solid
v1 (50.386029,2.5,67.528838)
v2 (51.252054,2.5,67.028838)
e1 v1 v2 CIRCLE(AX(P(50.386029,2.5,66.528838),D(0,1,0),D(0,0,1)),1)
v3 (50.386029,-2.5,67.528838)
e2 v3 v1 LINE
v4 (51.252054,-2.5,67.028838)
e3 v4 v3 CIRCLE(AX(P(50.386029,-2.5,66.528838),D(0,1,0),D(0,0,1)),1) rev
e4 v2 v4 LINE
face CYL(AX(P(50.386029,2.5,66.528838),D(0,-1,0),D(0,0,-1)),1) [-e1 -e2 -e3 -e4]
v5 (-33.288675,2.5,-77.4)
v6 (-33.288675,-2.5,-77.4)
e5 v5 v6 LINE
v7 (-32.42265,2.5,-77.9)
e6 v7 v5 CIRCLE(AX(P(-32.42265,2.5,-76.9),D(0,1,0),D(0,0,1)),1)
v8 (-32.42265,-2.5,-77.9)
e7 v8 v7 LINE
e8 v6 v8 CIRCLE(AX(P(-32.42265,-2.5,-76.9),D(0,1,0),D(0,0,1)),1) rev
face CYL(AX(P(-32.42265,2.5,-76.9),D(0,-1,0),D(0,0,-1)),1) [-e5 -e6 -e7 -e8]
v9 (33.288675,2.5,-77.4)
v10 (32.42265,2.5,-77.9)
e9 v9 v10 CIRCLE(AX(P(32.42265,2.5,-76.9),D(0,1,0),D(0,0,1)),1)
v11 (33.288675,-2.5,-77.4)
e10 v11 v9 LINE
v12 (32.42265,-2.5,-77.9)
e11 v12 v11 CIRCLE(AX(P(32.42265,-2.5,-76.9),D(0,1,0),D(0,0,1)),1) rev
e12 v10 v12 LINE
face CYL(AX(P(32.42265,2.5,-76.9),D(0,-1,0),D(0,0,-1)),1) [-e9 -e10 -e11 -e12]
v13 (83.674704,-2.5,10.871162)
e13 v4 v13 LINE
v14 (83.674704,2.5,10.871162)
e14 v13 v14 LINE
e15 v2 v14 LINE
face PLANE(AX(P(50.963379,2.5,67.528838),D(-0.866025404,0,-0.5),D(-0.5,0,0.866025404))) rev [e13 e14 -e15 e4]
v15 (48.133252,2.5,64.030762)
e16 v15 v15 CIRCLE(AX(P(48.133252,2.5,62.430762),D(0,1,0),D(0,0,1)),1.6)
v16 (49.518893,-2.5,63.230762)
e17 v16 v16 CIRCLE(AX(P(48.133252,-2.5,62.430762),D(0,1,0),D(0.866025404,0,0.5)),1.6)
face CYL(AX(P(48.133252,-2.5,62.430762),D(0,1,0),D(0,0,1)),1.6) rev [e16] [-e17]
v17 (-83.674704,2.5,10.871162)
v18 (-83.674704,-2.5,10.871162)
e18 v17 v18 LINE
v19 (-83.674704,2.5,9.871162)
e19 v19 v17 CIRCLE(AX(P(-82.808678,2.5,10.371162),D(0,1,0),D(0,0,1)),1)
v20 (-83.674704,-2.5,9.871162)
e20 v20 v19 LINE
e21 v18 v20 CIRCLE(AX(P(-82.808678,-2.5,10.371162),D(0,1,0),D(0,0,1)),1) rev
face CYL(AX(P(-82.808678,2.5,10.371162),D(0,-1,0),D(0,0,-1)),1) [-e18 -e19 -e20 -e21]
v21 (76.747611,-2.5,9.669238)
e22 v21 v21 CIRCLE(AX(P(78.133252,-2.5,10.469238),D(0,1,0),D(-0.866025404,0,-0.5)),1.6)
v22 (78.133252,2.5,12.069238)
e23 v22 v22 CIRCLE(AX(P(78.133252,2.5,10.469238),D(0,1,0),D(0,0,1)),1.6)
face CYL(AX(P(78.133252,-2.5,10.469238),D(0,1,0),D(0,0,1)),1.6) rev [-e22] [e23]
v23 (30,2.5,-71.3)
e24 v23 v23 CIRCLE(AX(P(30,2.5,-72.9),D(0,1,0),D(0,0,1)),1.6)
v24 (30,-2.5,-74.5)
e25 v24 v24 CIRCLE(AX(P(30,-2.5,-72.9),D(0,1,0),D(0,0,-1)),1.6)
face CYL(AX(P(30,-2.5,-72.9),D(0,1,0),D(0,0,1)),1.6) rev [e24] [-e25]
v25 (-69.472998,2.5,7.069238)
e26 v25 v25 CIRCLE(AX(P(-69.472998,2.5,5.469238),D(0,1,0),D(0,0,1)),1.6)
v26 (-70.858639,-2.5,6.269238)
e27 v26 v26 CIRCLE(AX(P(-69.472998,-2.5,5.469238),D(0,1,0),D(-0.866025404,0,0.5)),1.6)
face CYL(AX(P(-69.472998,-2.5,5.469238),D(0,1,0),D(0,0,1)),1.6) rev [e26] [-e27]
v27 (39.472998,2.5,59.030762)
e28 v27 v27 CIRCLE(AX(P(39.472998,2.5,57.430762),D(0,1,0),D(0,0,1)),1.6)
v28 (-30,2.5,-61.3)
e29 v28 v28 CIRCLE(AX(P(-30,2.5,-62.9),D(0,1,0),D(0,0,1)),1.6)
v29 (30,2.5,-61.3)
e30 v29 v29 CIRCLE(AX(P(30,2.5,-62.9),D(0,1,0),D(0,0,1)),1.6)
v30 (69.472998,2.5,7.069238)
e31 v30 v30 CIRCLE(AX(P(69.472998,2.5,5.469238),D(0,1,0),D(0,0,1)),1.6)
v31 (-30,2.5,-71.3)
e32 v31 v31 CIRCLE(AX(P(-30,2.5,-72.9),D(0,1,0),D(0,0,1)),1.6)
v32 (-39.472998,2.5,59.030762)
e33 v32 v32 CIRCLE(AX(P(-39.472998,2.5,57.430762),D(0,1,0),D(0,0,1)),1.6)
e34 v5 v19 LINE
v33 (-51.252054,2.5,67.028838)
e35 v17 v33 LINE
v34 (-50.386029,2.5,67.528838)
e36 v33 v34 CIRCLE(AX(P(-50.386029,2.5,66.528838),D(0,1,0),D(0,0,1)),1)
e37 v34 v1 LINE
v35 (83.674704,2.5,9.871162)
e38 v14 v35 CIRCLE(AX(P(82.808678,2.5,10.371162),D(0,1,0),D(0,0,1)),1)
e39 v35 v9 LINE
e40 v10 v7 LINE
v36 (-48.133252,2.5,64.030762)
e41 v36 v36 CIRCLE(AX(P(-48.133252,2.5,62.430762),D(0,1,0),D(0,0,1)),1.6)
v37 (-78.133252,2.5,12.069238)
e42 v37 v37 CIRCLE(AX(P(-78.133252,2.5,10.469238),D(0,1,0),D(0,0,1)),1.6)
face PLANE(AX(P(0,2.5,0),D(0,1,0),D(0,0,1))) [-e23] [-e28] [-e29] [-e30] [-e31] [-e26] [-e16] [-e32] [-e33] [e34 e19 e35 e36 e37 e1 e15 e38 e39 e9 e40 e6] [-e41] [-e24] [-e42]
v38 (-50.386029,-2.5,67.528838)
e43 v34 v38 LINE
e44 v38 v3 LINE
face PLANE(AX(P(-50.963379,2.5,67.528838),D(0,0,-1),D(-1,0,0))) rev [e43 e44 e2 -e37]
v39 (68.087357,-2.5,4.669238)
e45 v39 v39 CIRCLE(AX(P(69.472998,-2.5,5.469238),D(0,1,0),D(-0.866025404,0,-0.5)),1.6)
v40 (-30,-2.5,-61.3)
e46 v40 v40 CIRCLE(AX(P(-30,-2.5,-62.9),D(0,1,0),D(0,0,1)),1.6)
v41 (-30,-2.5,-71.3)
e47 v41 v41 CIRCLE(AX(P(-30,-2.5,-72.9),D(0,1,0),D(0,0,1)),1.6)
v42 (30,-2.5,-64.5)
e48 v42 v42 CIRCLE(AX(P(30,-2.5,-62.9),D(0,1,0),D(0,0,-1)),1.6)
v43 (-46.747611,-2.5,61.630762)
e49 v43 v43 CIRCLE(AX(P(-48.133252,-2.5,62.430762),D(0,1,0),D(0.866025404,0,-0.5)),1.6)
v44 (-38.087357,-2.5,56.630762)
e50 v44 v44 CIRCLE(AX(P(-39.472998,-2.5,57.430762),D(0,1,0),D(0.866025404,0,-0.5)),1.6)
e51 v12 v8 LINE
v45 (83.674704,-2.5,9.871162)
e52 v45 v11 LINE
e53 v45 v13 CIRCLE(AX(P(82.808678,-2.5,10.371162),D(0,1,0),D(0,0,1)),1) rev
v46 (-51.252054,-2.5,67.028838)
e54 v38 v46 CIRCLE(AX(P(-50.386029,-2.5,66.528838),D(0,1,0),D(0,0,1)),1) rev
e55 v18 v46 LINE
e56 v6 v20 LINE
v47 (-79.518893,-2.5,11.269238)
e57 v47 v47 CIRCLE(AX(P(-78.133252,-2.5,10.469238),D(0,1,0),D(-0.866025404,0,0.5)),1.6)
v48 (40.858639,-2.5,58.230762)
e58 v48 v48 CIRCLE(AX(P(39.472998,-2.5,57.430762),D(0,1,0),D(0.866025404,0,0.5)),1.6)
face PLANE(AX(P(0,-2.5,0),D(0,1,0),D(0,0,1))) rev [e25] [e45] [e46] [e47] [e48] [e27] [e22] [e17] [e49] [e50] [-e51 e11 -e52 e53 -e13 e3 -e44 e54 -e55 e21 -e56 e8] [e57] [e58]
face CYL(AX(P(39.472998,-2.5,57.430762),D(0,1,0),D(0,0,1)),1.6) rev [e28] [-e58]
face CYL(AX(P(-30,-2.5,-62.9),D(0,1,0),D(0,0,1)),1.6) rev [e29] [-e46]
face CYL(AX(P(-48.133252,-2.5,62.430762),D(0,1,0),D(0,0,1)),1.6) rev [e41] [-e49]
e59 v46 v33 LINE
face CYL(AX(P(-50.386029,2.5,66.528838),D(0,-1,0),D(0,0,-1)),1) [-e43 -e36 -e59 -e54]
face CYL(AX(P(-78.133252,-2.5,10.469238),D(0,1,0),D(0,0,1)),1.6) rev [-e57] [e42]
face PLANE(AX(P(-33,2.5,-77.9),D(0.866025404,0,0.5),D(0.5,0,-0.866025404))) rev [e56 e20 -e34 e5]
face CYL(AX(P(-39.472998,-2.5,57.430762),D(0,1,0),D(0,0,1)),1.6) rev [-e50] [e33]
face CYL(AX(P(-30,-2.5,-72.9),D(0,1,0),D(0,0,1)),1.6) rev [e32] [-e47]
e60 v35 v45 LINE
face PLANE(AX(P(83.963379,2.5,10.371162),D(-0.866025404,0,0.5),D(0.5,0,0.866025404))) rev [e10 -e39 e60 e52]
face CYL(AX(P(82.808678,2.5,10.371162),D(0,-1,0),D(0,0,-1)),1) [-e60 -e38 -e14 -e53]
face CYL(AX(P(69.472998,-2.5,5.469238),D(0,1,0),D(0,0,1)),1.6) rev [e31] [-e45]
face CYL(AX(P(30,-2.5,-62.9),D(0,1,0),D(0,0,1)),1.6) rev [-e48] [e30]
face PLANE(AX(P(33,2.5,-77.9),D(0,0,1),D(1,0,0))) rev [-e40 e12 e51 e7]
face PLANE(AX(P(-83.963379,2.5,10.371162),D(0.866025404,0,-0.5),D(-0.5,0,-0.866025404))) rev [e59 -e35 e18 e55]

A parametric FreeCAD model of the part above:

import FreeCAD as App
import Part
import Sketcher
Q = App.Units.Quantity


def edges_at(feature, points):
    """Names of the edges that pass closest to the given points."""
    edges = feature.Shape.Edges
    near = lambda p: min(range(len(edges)), key=lambda i: edges[i].distToShape(Part.Vertex(*p))[0])
    return sorted({f"Edge{near(p) + 1}" for p in points})

doc = App.newDocument("Part")
body = doc.addObject("PartDesign::Body", "Body")

# Sketch on XZ plane
sketch1 = doc.addObject("Sketcher::SketchObject", "Sketch")
body.addObject(sketch1)
sketch1.AttachmentSupport = (doc.XZ_Plane, [""])
sketch1.MapMode = "FlatFace"
sketch1.addGeometry(Part.LineSegment(App.Vector(-84, 10, 0), App.Vector(-51, 68, 0)), False)
sketch1.addGeometry(Part.LineSegment(App.Vector(-51, 68, 0), App.Vector(51, 68, 0)), False)
sketch1.addGeometry(Part.LineSegment(App.Vector(51, 68, 0), App.Vector(84, 10, 0)), False)
sketch1.addGeometry(Part.LineSegment(App.Vector(84, 10, 0), App.Vector(33, -78, 0)), False)
sketch1.addGeometry(Part.LineSegment(App.Vector(33, -78, 0), App.Vector(-33, -78, 0)), False)
sketch1.addGeometry(Part.LineSegment(App.Vector(-33, -78, 0), App.Vector(-84, 10, 0)), False)
sketch1.addConstraint(Sketcher.Constraint("Coincident", 0, 2, 1, 1))
sketch1.addConstraint(Sketcher.Constraint("Coincident", 1, 2, 2, 1))
sketch1.addConstraint(Sketcher.Constraint("Coincident", 2, 2, 3, 1))
sketch1.addConstraint(Sketcher.Constraint("Coincident", 3, 2, 4, 1))
sketch1.addConstraint(Sketcher.Constraint("Coincident", 4, 2, 5, 1))
sketch1.addConstraint(Sketcher.Constraint("Coincident", 5, 2, 0, 1))
sketch1.addConstraint(Sketcher.Constraint("Horizontal", 1))
sketch1.addConstraint(Sketcher.Constraint("Horizontal", 4))
sketch1.addConstraint(Sketcher.Constraint("Symmetric", 2, 2, 5, 2, -2))
sketch1.addConstraint(Sketcher.Constraint("Parallel", 0, 3))
sketch1.addConstraint(Sketcher.Constraint("Parallel", 2, 5))
sketch1.addConstraint(Sketcher.Constraint("Equal", 0, 2))
sketch1.addConstraint(Sketcher.Constraint("DistanceX", 4, 2, 4, 1, Q("66 mm")))
sketch1.addConstraint(Sketcher.Constraint("Angle", 0, Q("60 deg")))
sketch1.addConstraint(Sketcher.Constraint("Distance", 0, Q("66 mm")))
sketch1.addConstraint(Sketcher.Constraint("DistanceY", 3, 2, -1, 1, Q("77.9 mm")))
sketch1.addConstraint(Sketcher.Constraint("DistanceX", 1, 1, 1, 2, Q("101.926758 mm")))
pad1 = doc.addObject("PartDesign::Pad", "Pad")
body.addObject(pad1)
pad1.Profile = sketch1
pad1.Length = 5
pad1.Midplane = True
doc.recompute()

fillet = doc.addObject("PartDesign::Fillet", "Fillet")
body.addObject(fillet)
fillet.Base = (pad1, edges_at(pad1, [
    (-33, 0, -77.9),
    (33, 0, -77.9),
    (83.963, 0, 10.371),
    (50.963, 0, 67.529),
    (-50.963, 0, 67.529),
    (-83.963, 0, 10.371),
]))
fillet.Radius = 1

# Sketch on XZ plane
sketch2 = doc.addObject("Sketcher::SketchObject", "Sketch001")
body.addObject(sketch2)
sketch2.AttachmentSupport = (doc.XZ_Plane, [""])
sketch2.MapMode = "FlatFace"
sketch2.AttachmentOffset = App.Placement(App.Vector(0, 0, -2.5), App.Rotation())
sketch2.addGeometry(Part.Circle(App.Vector(-30, -72.9, 0), App.Vector(0, 0, 1), 1.6), False)
sketch2.addGeometry(Part.Circle(App.Vector(-30, -62.9, 0), App.Vector(0, 0, 1), 1.6), False)
sketch2.addGeometry(Part.Circle(App.Vector(30, -62.9, 0), App.Vector(0, 0, 1), 1.6), False)
sketch2.addGeometry(Part.Circle(App.Vector(30, -72.9, 0), App.Vector(0, 0, 1), 1.6), False)
sketch2.addConstraint(Sketcher.Constraint("Equal", 0, 1))
sketch2.addConstraint(Sketcher.Constraint("Equal", 1, 2))
sketch2.addConstraint(Sketcher.Constraint("Equal", 2, 3))
sketch2.addConstraint(Sketcher.Constraint("Symmetric", 1, 3, 2, 3, -2))
sketch2.addConstraint(Sketcher.Constraint("Symmetric", 0, 3, 3, 3, -2))
sketch2.addConstraint(Sketcher.Constraint("Vertical", 0, 3, 1, 3))
sketch2.addConstraint(Sketcher.Constraint("Diameter", 0, Q("3.2 mm")))
sketch2.addConstraint(Sketcher.Constraint("DistanceX", 0, 3, -1, 1, Q("30 mm")))
sketch2.addConstraint(Sketcher.Constraint("DistanceY", 0, 3, 1, 3, Q("10 mm")))
sketch2.addConstraint(Sketcher.Constraint("DistanceY", 0, 3, -1, 1, Q("72.9 mm")))
pocket1 = doc.addObject("PartDesign::Pocket", "Pocket")
body.addObject(pocket1)
pocket1.Profile = sketch2
pocket1.Length = 231.061604
pocket1.Midplane = True
doc.recompute()

polarpattern = doc.addObject("PartDesign::PolarPattern", "PolarPattern")
body.addObject(polarpattern)
polarpattern.Originals = [pocket1]
polarpattern.Axis = (doc.Y_Axis, [""])
polarpattern.Angle = 360
polarpattern.Occurrences = 3
body.Tip = polarpattern

doc.recompute()
